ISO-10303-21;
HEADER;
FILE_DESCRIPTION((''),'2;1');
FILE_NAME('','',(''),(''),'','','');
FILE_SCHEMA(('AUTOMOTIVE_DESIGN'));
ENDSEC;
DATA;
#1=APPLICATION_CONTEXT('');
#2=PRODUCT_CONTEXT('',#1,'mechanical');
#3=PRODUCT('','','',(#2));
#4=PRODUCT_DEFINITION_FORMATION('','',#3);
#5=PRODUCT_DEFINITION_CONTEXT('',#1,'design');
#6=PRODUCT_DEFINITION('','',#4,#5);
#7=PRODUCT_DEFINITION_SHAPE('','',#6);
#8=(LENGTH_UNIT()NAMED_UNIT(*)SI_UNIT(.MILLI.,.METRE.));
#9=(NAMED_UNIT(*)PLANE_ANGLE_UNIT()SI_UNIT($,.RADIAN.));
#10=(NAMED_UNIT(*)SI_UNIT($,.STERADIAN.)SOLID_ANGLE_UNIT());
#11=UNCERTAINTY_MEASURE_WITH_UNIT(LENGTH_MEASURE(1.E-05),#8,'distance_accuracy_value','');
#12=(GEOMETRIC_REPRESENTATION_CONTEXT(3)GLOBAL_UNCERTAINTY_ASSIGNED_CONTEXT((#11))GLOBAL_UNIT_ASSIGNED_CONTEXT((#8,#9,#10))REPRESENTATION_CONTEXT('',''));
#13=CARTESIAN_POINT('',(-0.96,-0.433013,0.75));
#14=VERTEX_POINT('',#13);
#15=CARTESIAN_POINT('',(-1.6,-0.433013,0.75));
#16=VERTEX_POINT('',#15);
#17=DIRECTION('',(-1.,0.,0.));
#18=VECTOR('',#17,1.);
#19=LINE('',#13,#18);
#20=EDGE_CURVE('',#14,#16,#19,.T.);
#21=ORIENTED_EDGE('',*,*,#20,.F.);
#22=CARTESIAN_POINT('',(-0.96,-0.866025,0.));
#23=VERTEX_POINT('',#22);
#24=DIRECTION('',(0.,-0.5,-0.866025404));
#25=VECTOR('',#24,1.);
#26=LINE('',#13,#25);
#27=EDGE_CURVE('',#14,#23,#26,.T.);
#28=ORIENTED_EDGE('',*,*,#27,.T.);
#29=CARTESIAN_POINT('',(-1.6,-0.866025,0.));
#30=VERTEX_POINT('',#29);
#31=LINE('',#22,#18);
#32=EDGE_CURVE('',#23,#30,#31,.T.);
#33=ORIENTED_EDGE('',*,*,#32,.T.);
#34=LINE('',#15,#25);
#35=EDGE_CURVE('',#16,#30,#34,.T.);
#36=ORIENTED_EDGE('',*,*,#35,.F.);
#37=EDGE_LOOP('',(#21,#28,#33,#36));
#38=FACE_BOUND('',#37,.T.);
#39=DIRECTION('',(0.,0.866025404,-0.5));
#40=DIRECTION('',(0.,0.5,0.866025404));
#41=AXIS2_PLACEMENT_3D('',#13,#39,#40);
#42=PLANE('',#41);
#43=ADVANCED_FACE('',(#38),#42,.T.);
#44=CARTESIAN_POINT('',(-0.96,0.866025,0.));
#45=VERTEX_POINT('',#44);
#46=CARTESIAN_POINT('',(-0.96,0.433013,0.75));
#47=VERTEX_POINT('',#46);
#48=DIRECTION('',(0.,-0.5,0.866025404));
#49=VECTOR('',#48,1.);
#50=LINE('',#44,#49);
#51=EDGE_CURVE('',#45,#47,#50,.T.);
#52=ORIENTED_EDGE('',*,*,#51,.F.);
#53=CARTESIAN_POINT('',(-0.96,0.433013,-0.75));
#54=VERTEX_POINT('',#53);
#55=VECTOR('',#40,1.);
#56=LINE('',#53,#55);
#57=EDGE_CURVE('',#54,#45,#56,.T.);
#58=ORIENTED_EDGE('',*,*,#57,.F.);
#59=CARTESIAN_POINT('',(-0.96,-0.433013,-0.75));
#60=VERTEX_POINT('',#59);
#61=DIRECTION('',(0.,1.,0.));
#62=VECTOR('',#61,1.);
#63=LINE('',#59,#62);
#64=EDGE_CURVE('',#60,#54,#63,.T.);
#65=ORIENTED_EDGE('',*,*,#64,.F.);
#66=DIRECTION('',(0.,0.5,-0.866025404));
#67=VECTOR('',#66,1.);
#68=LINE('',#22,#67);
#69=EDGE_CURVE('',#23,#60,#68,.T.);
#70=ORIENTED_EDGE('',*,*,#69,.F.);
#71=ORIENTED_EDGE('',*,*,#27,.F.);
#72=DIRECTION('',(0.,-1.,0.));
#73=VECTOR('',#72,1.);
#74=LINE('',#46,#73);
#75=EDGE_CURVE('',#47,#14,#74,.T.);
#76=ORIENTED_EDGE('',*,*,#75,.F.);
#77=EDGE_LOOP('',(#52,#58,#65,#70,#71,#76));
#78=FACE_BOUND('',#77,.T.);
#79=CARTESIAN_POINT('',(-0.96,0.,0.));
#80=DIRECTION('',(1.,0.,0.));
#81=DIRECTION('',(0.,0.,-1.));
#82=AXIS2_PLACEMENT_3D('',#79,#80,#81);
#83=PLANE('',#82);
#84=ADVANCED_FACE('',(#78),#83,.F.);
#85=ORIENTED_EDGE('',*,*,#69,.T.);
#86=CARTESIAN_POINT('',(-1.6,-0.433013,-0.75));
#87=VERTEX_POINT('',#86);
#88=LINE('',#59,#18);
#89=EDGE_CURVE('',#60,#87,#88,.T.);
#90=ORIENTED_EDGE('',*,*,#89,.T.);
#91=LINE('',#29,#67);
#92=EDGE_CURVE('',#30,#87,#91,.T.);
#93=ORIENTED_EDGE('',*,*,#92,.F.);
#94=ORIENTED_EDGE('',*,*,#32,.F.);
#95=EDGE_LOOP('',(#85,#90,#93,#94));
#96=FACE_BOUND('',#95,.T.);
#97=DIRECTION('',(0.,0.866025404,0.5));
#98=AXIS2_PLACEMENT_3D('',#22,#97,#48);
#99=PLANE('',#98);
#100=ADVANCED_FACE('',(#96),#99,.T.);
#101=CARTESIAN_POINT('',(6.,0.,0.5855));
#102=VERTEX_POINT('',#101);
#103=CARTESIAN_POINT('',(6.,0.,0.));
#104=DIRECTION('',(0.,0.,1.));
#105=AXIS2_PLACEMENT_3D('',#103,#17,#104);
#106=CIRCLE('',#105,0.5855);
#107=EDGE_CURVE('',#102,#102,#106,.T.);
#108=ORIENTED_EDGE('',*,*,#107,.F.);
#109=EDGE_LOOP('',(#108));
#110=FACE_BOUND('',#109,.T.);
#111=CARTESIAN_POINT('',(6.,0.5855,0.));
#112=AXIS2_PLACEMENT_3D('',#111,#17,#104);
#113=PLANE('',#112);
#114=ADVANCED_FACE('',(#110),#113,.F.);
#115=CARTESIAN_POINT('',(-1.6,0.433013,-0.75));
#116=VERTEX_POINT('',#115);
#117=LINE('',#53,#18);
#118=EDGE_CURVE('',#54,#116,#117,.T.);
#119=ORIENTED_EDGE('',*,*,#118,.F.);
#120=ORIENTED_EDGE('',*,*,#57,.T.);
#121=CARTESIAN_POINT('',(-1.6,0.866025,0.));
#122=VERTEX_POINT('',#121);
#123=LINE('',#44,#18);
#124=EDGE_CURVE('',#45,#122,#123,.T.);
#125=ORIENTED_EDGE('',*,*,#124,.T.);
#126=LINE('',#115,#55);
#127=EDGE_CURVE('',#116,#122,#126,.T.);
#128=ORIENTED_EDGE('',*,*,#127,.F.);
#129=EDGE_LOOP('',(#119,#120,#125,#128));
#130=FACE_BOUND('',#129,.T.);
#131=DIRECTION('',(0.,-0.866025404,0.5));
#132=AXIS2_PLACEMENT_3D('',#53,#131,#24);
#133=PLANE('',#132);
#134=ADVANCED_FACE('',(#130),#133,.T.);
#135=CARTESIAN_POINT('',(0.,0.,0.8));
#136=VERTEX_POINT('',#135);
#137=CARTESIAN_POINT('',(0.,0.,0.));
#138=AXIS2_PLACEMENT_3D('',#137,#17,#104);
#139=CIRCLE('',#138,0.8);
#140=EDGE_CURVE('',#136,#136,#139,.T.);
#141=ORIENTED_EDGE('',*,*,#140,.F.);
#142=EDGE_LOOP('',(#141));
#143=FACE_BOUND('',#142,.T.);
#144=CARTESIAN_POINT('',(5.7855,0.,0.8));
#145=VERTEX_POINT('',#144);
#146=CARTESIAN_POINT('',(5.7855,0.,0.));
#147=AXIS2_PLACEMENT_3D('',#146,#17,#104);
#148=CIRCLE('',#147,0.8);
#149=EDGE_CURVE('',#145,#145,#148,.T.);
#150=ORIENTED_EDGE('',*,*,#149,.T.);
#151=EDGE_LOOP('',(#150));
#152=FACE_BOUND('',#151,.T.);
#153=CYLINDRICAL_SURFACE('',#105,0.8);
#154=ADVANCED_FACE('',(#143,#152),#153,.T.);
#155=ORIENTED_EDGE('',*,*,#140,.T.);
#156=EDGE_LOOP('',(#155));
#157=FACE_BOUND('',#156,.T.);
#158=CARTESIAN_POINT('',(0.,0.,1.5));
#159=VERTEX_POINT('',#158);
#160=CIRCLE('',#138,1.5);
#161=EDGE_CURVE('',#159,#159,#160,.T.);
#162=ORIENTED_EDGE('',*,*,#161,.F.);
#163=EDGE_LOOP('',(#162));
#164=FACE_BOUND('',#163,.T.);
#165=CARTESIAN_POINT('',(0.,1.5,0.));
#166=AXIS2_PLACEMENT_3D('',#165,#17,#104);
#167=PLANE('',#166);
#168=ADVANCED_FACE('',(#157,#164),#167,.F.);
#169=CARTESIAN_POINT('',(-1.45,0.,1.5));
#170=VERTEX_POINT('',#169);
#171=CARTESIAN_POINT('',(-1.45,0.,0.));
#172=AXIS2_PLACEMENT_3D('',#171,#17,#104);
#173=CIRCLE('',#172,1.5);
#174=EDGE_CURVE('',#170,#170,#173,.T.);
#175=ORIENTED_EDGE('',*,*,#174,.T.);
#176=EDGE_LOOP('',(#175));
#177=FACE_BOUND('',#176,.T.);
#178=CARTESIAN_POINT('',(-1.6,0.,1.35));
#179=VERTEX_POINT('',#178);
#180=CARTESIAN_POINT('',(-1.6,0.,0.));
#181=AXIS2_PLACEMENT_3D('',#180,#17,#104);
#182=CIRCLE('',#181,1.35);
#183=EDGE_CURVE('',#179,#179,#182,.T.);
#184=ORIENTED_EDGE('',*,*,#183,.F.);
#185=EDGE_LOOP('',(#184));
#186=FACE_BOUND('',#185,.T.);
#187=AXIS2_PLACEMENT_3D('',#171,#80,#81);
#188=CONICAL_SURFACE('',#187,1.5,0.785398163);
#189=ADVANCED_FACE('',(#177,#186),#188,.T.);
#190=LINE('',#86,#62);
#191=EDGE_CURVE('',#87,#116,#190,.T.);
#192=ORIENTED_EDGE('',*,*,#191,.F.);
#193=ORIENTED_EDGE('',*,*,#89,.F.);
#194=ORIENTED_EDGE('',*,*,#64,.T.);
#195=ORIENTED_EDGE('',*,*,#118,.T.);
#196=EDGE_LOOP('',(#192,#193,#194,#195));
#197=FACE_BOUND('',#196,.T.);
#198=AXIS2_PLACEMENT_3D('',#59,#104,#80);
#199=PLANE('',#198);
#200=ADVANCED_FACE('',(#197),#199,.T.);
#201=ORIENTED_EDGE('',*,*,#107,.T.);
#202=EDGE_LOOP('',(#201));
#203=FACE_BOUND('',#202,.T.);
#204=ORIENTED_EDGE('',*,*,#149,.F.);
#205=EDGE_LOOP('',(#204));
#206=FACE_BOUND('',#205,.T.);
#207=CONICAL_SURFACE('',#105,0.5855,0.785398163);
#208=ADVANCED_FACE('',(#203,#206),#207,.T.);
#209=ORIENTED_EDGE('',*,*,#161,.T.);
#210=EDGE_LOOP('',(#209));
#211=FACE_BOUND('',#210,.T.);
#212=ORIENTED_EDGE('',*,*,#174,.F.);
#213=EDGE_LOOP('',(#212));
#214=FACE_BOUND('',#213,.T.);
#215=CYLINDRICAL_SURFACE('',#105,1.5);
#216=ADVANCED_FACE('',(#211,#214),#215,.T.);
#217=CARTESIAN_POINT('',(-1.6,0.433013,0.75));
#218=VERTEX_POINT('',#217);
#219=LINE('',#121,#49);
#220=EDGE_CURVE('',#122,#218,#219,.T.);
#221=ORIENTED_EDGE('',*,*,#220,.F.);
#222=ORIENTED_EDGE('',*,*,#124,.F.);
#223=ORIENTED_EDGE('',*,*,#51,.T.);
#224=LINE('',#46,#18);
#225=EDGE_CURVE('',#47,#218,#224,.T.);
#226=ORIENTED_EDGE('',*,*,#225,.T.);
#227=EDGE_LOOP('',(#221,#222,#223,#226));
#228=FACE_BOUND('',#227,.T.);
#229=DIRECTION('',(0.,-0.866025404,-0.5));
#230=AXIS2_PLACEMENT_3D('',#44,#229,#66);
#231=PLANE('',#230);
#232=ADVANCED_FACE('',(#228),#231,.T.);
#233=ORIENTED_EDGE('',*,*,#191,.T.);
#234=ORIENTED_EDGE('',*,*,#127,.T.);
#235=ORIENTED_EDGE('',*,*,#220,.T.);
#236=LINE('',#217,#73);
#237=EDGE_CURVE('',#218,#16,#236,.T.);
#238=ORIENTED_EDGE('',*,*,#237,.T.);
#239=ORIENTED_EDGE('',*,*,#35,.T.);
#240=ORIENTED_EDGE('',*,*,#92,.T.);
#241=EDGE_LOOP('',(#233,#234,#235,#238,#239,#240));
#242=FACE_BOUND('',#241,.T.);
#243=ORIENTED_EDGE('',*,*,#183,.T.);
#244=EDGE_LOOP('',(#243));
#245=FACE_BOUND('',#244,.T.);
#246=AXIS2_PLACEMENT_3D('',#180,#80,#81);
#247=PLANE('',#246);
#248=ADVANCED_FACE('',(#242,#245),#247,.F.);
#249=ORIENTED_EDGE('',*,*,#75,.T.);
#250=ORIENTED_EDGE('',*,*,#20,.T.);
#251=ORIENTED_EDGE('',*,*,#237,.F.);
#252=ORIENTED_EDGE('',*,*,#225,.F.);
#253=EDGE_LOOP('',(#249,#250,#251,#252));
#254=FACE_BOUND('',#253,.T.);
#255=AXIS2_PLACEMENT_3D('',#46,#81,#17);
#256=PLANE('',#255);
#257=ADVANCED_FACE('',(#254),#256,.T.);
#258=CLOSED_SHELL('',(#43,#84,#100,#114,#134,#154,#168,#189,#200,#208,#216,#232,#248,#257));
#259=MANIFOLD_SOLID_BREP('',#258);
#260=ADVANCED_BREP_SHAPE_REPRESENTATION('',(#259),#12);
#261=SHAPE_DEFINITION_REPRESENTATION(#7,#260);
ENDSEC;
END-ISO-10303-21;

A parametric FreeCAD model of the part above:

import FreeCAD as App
import Part
import Sketcher
from FreeCAD import Vector
Q = App.Units.Quantity


def add_polygon(sketch, points):
    """Adds a closed chain of lines whose ends are joined by coincident constraints."""
    first, n = sketch.GeometryCount, len(points)
    for a, b in zip(points, points[1:] + points[:1]):
        sketch.addGeometry(Part.LineSegment(App.Vector(*a, 0), App.Vector(*b, 0)), False)
    for i in range(n):
        sketch.addConstraint(Sketcher.Constraint("Coincident", first + i, 2, first + (i + 1) % n, 1))

doc = App.newDocument("Part")
body = doc.addObject("PartDesign::Body", "Body")

# Sketch on XY plane
sketch1 = body.newObject("Sketcher::SketchObject", "Sketch")
sketch1.AttachmentSupport = (doc.getObject("XY_Plane"), [""])
sketch1.MapMode = "FlatFace"
add_polygon(sketch1, [(-1.6, 1.35), (-1.6, 0), (6, 0), (6, 0.59), (5.79, 0.8), (0, 0.8), (0, 1.5), (-1.45, 1.5)])  # lines 0-7
sketch1.addConstraint([
    Sketcher.Constraint("Vertical", 0),
    Sketcher.Constraint("Horizontal", 1),
    Sketcher.Constraint("Vertical", 2),
    Sketcher.Constraint("Horizontal", 4),
    Sketcher.Constraint("Vertical", 5),
    Sketcher.Constraint("Horizontal", 6),
    Sketcher.Constraint("PointOnObject", 0, 2, -1),
    Sketcher.Constraint("PointOnObject", 4, 2, -2),
    Sketcher.Constraint("Perpendicular", 3, 7),
    Sketcher.Constraint("Angle", 3, Q("135 deg")),
    Sketcher.Constraint("DistanceX", 1, 1, 1, 2, 7.6),
    Sketcher.Constraint("DistanceY", 5, 1, 5, 2, 0.7),
    Sketcher.Constraint("DistanceX", -1, 1, 1, 2, 6.0),
    Sketcher.Constraint("DistanceX", 6, 2, 6, 1, 1.45),
    Sketcher.Constraint("DistanceY", 0, 2, 0, 1, 1.35),
    Sketcher.Constraint("DistanceX", 4, 2, 4, 1, 5.7855),
])
revolution = body.newObject("PartDesign::Revolution", "Revolution")
revolution.Profile = sketch1
revolution.ReferenceAxis = (sketch1, ["H_Axis"])
revolution.Angle = 360

# Sketch on YZ plane
sketch2 = body.newObject("Sketcher::SketchObject", "Sketch001")
sketch2.AttachmentSupport = (doc.getObject("YZ_Plane"), [""])
sketch2.MapMode = "FlatFace"
sketch2.AttachmentOffset = App.Placement(Vector(0, 0, -1.6), App.Rotation())
add_polygon(sketch2, [(-0.4, 0.8), (-0.9, 0), (-0.4, -0.8), (0.4, -0.8), (0.9, 0), (0.4, 0.8)])  # lines 0-5
sketch2.addConstraint([
    Sketcher.Constraint("Horizontal", 2),
    Sketcher.Constraint("Horizontal", 5),
    Sketcher.Constraint("Symmetric", 0, 2, 3, 2, -1, 1),
    Sketcher.Constraint("Symmetric", 1, 2, 4, 2, -1, 1),
    Sketcher.Constraint("PointOnObject", 0, 2, -1),
    Sketcher.Constraint("Parallel", 0, 3),
    Sketcher.Constraint("Vertical", 2, 2, 4, 2),
    Sketcher.Constraint("Angle", 0, Q("-120 deg")),
    Sketcher.Constraint("DistanceY", 2, 2, 4, 2, 1.5),
    Sketcher.Constraint("DistanceX", 2, 1, 2, 2, 0.866025),
])
pocket1 = body.newObject("PartDesign::Pocket", "Pocket")
pocket1.Profile = sketch2
pocket1.Length = 0.64
pocket1.Reversed = True

doc.recompute()
